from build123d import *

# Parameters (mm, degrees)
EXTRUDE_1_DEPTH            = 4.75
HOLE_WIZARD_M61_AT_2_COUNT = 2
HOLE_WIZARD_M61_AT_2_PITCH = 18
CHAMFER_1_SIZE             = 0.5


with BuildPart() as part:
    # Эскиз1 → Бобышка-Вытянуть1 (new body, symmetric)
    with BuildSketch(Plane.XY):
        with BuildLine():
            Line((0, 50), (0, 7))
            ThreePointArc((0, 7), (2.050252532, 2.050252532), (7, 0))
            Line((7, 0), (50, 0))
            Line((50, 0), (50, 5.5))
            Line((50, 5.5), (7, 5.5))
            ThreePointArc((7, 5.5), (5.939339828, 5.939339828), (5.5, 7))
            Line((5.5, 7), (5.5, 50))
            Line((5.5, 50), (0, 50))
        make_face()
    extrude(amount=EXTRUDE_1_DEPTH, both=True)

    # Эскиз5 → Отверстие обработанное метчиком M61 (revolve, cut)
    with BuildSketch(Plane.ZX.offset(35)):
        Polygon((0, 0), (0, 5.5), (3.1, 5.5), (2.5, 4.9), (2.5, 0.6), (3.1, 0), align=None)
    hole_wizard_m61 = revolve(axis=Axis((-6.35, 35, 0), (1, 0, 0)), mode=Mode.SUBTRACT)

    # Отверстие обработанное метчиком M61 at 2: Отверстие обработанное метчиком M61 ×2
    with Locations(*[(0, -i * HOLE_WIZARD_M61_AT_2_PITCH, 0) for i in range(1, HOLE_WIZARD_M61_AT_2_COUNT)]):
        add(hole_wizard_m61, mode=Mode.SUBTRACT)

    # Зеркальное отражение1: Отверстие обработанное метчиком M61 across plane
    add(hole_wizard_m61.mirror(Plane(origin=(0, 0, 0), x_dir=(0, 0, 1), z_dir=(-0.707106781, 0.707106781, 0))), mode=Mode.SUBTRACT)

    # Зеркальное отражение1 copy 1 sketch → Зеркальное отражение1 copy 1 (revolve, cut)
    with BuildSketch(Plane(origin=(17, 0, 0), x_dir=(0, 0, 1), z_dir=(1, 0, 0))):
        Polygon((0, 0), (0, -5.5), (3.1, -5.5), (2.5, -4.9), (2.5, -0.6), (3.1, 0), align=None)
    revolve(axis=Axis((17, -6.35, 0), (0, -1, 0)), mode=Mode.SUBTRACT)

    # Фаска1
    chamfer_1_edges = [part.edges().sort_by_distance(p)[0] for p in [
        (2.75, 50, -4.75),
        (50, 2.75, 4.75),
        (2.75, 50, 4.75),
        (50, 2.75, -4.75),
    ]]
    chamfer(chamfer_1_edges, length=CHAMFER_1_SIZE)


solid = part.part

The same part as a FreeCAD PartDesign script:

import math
import FreeCAD as App
import Part
import Sketcher
from FreeCAD import Vector


def edges_at(feature, points):
    """Names of the edges that pass closest to the given points."""
    edges = feature.Shape.Edges
    near = lambda p: min(range(len(edges)), key=lambda i: edges[i].distToShape(Part.Vertex(*p))[0])
    return sorted({f"Edge{near(p) + 1}" for p in points})

doc = App.newDocument("Part")
body = doc.addObject("PartDesign::Body", "Body")

# Sketch on XY plane
sketch1 = doc.addObject("Sketcher::SketchObject", "Sketch")
body.addObject(sketch1)
sketch1.AttachmentSupport = (doc.XY_Plane, [""])
sketch1.MapMode = "FlatFace"
sketch1.addGeometry([
    Part.LineSegment(Vector(0, 50, 0), Vector(0, 7, 0)),  # 0
    Part.ArcOfCircle(Part.Circle(Vector(7, 7, 0), Vector(0, 0, 1), 7), math.radians(-180), math.radians(-90)),  # 1
    Part.LineSegment(Vector(7, 0, 0), Vector(50, 0, 0)),  # 2
    Part.LineSegment(Vector(50, 0, 0), Vector(50, 5.5, 0)),  # 3
    Part.LineSegment(Vector(50, 5.5, 0), Vector(7, 5.5, 0)),  # 4
    Part.ArcOfCircle(Part.Circle(Vector(7, 7, 0), Vector(0, 0, 1), 1.5), math.radians(180), math.radians(270)),  # 5
    Part.LineSegment(Vector(5.5, 7, 0), Vector(5.5, 50, 0)),  # 6
    Part.LineSegment(Vector(5.5, 50, 0), Vector(0, 50, 0)),  # 7
], False)
sketch1.addConstraint([
    Sketcher.Constraint("Tangent", 0, 2, 1, 1),
    Sketcher.Constraint("Tangent", 1, 2, 2, 1),
    Sketcher.Constraint("Coincident", 2, 2, 3, 1),
    Sketcher.Constraint("Coincident", 3, 2, 4, 1),
    Sketcher.Constraint("Tangent", 4, 2, 5, 2),
    Sketcher.Constraint("Tangent", 5, 1, 6, 1),
    Sketcher.Constraint("Coincident", 6, 2, 7, 1),
    Sketcher.Constraint("Coincident", 7, 2, 0, 1),
    Sketcher.Constraint("Vertical", 0),
    Sketcher.Constraint("Horizontal", 2),
    Sketcher.Constraint("Vertical", 3),
    Sketcher.Constraint("Horizontal", 4),
    Sketcher.Constraint("Vertical", 6),
    Sketcher.Constraint("Horizontal", 7),
    Sketcher.Constraint("Coincident", 5, 3, 1, 3),
    Sketcher.Constraint("PointOnObject", 0, 2, -2),
    Sketcher.Constraint("PointOnObject", 1, 2, -1),
    Sketcher.Constraint("Equal", 4, 0),
    Sketcher.Constraint("Radius", 1, 7.0),
    Sketcher.Constraint("Radius", 5, 1.5),
    Sketcher.Constraint("DistanceX", 2, 1, 2, 2, 43.0),
])
pad1 = doc.addObject("PartDesign::Pad", "Pad")
body.addObject(pad1)
pad1.Profile = sketch1
pad1.Length = 9.5
pad1.Midplane = True

# Sketch on XZ plane
sketch2 = doc.addObject("Sketcher::SketchObject", "Sketch001")
body.addObject(sketch2)
sketch2.AttachmentSupport = (doc.XZ_Plane, [""])
sketch2.MapMode = "FlatFace"
sketch2.AttachmentOffset = App.Placement(Vector(0, 0, -35), App.Rotation())
sketch2.addGeometry([
    Part.LineSegment(Vector(5.5, 0, 0), Vector(0, 0, 0)),  # 0
    Part.LineSegment(Vector(0, 0, 0), Vector(0, 3.1, 0)),  # 1
    Part.LineSegment(Vector(0, 3.1, 0), Vector(0.6, 2.5, 0)),  # 2
    Part.LineSegment(Vector(0.6, 2.5, 0), Vector(4.9, 2.5, 0)),  # 3
    Part.LineSegment(Vector(4.9, 2.5, 0), Vector(5.5, 3.1, 0)),  # 4
    Part.LineSegment(Vector(5.5, 3.1, 0), Vector(5.5, 0, 0)),  # 5
], False)
sketch2.addConstraint([
    Sketcher.Constraint("Coincident", 0, 2, 1, 1),
    Sketcher.Constraint("Coincident", 1, 2, 2, 1),
    Sketcher.Constraint("Coincident", 2, 2, 3, 1),
    Sketcher.Constraint("Coincident", 3, 2, 4, 1),
    Sketcher.Constraint("Coincident", 4, 2, 5, 1),
    Sketcher.Constraint("Coincident", 5, 2, 0, 1),
    Sketcher.Constraint("Horizontal", 0),
    Sketcher.Constraint("Vertical", 1),
    Sketcher.Constraint("Horizontal", 3),
    Sketcher.Constraint("Vertical", 5),
    Sketcher.Constraint("Coincident", 0, 2, -1, 1),
    Sketcher.Constraint("Perpendicular", 2, 4),
    Sketcher.Constraint("Horizontal", 1, 2, 4, 2),
    Sketcher.Constraint("Equal", 2, 4),
    Sketcher.Constraint("DistanceX", 0, 2, 0, 1, 5.5),
    Sketcher.Constraint("DistanceX", 3, 1, 3, 2, 4.3),
    Sketcher.Constraint("DistanceY", 1, 1, 1, 2, 3.1),
])
groove = doc.addObject("PartDesign::Groove", "Groove")
body.addObject(groove)
groove.Profile = sketch2
groove.ReferenceAxis = (sketch2, ["H_Axis"])
groove.Angle = 360
doc.recompute()

linearpattern = doc.addObject("PartDesign::LinearPattern", "LinearPattern")
body.addObject(linearpattern)
linearpattern.Originals = [groove]
linearpattern.Direction = (doc.Y_Axis, [""])
linearpattern.Mode = "offset"
linearpattern.Offset = 18
linearpattern.Occurrences = 2
linearpattern.Reversed = True
body.Tip = linearpattern
doc.recompute()

datumplane = doc.addObject("PartDesign::Plane", "DatumPlane")
body.addObject(datumplane)
datumplane.Placement = App.Placement(Vector(0, 0, 0), App.Rotation(Vector(0.707106781, 0.707106781, 0), Vector(0, 0, -1), Vector(-0.707106781, 0.707106781, 0), "ZXY"))
mirrored = doc.addObject("PartDesign::Mirrored", "Mirrored")
body.addObject(mirrored)
mirrored.Originals = [groove]
mirrored.MirrorPlane = (datumplane, [""])
body.Tip = mirrored

# Sketch on YZ plane
sketch3 = doc.addObject("Sketcher::SketchObject", "Sketch002")
body.addObject(sketch3)
sketch3.AttachmentSupport = (doc.YZ_Plane, [""])
sketch3.MapMode = "FlatFace"
sketch3.AttachmentOffset = App.Placement(Vector(0, 0, 17), App.Rotation())
sketch3.addGeometry([
    Part.LineSegment(Vector(0, 0, 0), Vector(5.5, 0, 0)),  # 0
    Part.LineSegment(Vector(5.5, 0, 0), Vector(5.5, 3.1, 0)),  # 1
    Part.LineSegment(Vector(5.5, 3.1, 0), Vector(4.9, 2.5, 0)),  # 2
    Part.LineSegment(Vector(4.9, 2.5, 0), Vector(0.6, 2.5, 0)),  # 3
    Part.LineSegment(Vector(0.6, 2.5, 0), Vector(0, 3.1, 0)),  # 4
    Part.LineSegment(Vector(0, 3.1, 0), Vector(0, 0, 0)),  # 5
], False)
sketch3.addConstraint([
    Sketcher.Constraint("Coincident", 0, 2, 1, 1),
    Sketcher.Constraint("Coincident", 1, 2, 2, 1),
    Sketcher.Constraint("Coincident", 2, 2, 3, 1),
    Sketcher.Constraint("Coincident", 3, 2, 4, 1),
    Sketcher.Constraint("Coincident", 4, 2, 5, 1),
    Sketcher.Constraint("Coincident", 5, 2, 0, 1),
    Sketcher.Constraint("Horizontal", 0),
    Sketcher.Constraint("Vertical", 1),
    Sketcher.Constraint("Horizontal", 3),
    Sketcher.Constraint("Vertical", 5),
    Sketcher.Constraint("Coincident", 5, 2, -1, 1),
    Sketcher.Constraint("Perpendicular", 2, 4),
    Sketcher.Constraint("Horizontal", 1, 2, 4, 2),
    Sketcher.Constraint("Equal", 2, 4),
    Sketcher.Constraint("DistanceX", 0, 1, 0, 2, 5.5),
    Sketcher.Constraint("DistanceX", 3, 2, 3, 1, 4.3),
    Sketcher.Constraint("DistanceY", 1, 1, 1, 2, 3.1),
])
groove2 = doc.addObject("PartDesign::Groove", "Groove001")
body.addObject(groove2)
groove2.Profile = sketch3
groove2.ReferenceAxis = (sketch3, ["H_Axis"])
groove2.Angle = 360
doc.recompute()

chamfer = doc.addObject("PartDesign::Chamfer", "Chamfer")
body.addObject(chamfer)
chamfer.Base = (groove2, edges_at(groove2, [
    (2.75, 50, -4.75),
    (50, 2.75, 4.75),
    (2.75, 50, 4.75),
    (50, 2.75, -4.75),
]))
chamfer.Size = 0.5

doc.recompute()
